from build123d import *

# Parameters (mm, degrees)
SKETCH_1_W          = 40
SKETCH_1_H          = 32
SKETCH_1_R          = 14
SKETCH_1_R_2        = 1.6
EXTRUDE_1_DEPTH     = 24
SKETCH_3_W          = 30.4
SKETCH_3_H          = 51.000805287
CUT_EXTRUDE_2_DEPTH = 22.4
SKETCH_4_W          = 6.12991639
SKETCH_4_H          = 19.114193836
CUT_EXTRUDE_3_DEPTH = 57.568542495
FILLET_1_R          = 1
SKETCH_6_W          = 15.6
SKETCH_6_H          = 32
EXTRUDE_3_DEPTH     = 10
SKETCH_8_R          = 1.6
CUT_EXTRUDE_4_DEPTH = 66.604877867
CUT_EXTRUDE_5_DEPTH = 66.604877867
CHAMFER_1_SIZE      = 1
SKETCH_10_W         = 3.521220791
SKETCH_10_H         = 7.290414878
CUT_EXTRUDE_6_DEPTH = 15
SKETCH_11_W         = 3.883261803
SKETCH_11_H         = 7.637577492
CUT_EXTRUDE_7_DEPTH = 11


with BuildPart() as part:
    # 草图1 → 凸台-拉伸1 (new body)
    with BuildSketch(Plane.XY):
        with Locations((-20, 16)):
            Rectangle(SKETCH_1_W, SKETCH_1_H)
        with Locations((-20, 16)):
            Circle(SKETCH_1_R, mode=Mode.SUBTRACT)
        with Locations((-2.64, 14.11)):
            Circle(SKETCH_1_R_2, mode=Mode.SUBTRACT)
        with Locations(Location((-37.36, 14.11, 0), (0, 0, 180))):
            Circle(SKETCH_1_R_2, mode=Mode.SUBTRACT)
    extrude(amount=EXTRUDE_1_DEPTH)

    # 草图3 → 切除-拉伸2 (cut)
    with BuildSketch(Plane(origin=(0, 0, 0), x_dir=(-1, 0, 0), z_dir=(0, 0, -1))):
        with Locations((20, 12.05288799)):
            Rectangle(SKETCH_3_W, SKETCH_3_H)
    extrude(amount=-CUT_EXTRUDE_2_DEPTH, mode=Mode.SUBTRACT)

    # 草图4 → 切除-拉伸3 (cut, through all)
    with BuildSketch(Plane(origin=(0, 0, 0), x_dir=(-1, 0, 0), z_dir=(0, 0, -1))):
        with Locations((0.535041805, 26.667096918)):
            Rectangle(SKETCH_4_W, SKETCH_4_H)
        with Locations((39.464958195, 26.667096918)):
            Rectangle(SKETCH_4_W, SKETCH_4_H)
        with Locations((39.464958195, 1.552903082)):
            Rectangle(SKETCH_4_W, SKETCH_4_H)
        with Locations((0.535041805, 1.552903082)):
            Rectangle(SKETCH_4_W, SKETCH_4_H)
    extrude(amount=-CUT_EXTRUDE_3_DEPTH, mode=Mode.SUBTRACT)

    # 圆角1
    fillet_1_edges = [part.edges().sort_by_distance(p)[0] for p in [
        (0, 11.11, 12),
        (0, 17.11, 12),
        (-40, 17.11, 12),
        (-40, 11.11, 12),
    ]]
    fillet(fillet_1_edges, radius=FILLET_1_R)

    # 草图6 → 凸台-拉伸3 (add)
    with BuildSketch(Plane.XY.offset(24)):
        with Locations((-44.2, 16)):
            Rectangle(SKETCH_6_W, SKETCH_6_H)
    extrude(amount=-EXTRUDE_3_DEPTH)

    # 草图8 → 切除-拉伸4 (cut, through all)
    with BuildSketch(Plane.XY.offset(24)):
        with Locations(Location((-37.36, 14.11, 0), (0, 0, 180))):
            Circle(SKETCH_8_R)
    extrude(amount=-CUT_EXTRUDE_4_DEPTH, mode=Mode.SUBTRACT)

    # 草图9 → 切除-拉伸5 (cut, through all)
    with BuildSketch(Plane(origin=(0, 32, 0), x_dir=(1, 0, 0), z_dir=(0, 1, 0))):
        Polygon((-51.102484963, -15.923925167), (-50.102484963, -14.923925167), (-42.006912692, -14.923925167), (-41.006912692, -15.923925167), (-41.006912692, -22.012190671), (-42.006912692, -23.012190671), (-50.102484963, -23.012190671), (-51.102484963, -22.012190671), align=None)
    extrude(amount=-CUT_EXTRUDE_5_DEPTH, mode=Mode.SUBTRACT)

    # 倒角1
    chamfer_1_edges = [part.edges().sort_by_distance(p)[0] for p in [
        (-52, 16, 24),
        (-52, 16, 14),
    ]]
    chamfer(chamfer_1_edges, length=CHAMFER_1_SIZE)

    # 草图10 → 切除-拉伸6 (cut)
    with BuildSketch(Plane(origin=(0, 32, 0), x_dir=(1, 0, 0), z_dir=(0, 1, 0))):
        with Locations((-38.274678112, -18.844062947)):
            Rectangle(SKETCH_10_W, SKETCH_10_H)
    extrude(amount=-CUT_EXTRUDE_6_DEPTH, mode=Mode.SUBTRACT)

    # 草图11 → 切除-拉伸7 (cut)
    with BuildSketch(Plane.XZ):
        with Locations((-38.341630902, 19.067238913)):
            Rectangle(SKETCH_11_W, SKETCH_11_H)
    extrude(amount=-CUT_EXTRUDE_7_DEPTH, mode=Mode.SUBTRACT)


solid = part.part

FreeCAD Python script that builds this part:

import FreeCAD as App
import Part
import Sketcher
from FreeCAD import Vector
Q = App.Units.Quantity


def edges_at(feature, points):
    """Names of the edges that pass closest to the given points."""
    edges = feature.Shape.Edges
    near = lambda p: min(range(len(edges)), key=lambda i: edges[i].distToShape(Part.Vertex(*p))[0])
    return sorted({f"Edge{near(p) + 1}" for p in points})

doc = App.newDocument("Part")
body = doc.addObject("PartDesign::Body", "Body")

sketch1 = body.newObject("Sketcher::SketchObject", "Sketch")
sketch1.AttachmentSupport = (doc.getObject("XY_Plane"), [""])
sketch1.MapMode = "FlatFace"
sketch1.addGeometry([
    Part.LineSegment(Vector(-40, 32, 0), Vector(-40, 0, 0)),
    Part.LineSegment(Vector(-40, 0, 0), Vector(0, 0, 0)),
    Part.LineSegment(Vector(0, 0, 0), Vector(0, 32, 0)),
    Part.LineSegment(Vector(0, 32, 0), Vector(-40, 32, 0)),
    Part.Circle(Vector(-37.36, 14.11, 0), Vector(0, 0, 1), 1.6),
    Part.Circle(Vector(-2.64, 14.11, 0), Vector(0, 0, 1), 1.6),
    Part.Circle(Vector(-20, 16, 0), Vector(0, 0, 1), 14),
], False)
sketch1.addConstraint([
    Sketcher.Constraint("Coincident", 0, 2, 1, 1),
    Sketcher.Constraint("Coincident", 1, 2, 2, 1),
    Sketcher.Constraint("Coincident", 2, 2, 3, 1),
    Sketcher.Constraint("Coincident", 3, 2, 0, 1),
    Sketcher.Constraint("Vertical", 0),
    Sketcher.Constraint("Horizontal", 1),
    Sketcher.Constraint("Vertical", 2),
    Sketcher.Constraint("Horizontal", 3),
    Sketcher.Constraint("Coincident", 1, 2, -1, 1),
    Sketcher.Constraint("Equal", 4, 5),
    Sketcher.Constraint("Horizontal", 4, 3, 5, 3),
    Sketcher.Constraint("Diameter", 6, Q("28 mm")),
    Sketcher.Constraint("Diameter", 4, Q("3.2 mm")),
    Sketcher.Constraint("DistanceX", 1, 1, 1, 2, Q("40 mm")),
    Sketcher.Constraint("DistanceY", 0, 2, 0, 1, Q("32 mm")),
    Sketcher.Constraint("DistanceX", 6, 3, -1, 1, Q("20 mm")),
    Sketcher.Constraint("DistanceY", -1, 1, 6, 3, Q("16 mm")),
    Sketcher.Constraint("DistanceX", 4, 3, -1, 1, Q("37.36 mm")),
    Sketcher.Constraint("DistanceY", -1, 1, 4, 3, Q("14.11 mm")),
    Sketcher.Constraint("DistanceX", 5, 3, -1, 1, Q("2.64 mm")),
])
pad1 = body.newObject("PartDesign::Pad", "Pad")
pad1.Profile = sketch1
pad1.Length = 24

sketch2 = body.newObject("Sketcher::SketchObject", "Sketch001")
sketch2.AttachmentSupport = (doc.getObject("XY_Plane"), [""])
sketch2.MapMode = "FlatFace"
sketch2.addGeometry([
    Part.LineSegment(Vector(-4.8, 37.553291, 0), Vector(-4.8, -13.447515, 0)),
    Part.LineSegment(Vector(-4.8, -13.447515, 0), Vector(-35.2, -13.447515, 0)),
    Part.LineSegment(Vector(-35.2, -13.447515, 0), Vector(-35.2, 37.553291, 0)),
    Part.LineSegment(Vector(-35.2, 37.553291, 0), Vector(-4.8, 37.553291, 0)),
], False)
sketch2.addConstraint([
    Sketcher.Constraint("Coincident", 0, 2, 1, 1),
    Sketcher.Constraint("Coincident", 1, 2, 2, 1),
    Sketcher.Constraint("Coincident", 2, 2, 3, 1),
    Sketcher.Constraint("Coincident", 3, 2, 0, 1),
    Sketcher.Constraint("Vertical", 0),
    Sketcher.Constraint("Horizontal", 1),
    Sketcher.Constraint("Vertical", 2),
    Sketcher.Constraint("Horizontal", 3),
    Sketcher.Constraint("DistanceX", 1, 2, 1, 1, Q("30.4 mm")),
    Sketcher.Constraint("DistanceX", 0, 2, -1, 1, Q("4.8 mm")),
    Sketcher.Constraint("DistanceY", 0, 2, 0, 1, Q("51.000805 mm")),
    Sketcher.Constraint("DistanceY", -1, 1, 2, 2, Q("37.553291 mm")),
])
pocket1 = body.newObject("PartDesign::Pocket", "Pocket")
pocket1.Profile = sketch2
pocket1.Length = 22.4
pocket1.Reversed = True

sketch3 = body.newObject("Sketcher::SketchObject", "Sketch002")
sketch3.AttachmentSupport = (doc.getObject("XY_Plane"), [""])
sketch3.MapMode = "FlatFace"
sketch3.addGeometry([
    Part.LineSegment(Vector(2.529916, 36.224194, 0), Vector(2.529916, 17.11, 0)),
    Part.LineSegment(Vector(2.529916, 17.11, 0), Vector(-3.6, 17.11, 0)),
    Part.LineSegment(Vector(-3.6, 17.11, 0), Vector(-3.6, 36.224194, 0)),
    Part.LineSegment(Vector(-3.6, 36.224194, 0), Vector(2.529916, 36.224194, 0)),
    Part.LineSegment(Vector(-36.4, 36.224194, 0), Vector(-36.4, 17.11, 0)),
    Part.LineSegment(Vector(-36.4, 17.11, 0), Vector(-42.529916, 17.11, 0)),
    Part.LineSegment(Vector(-42.529916, 17.11, 0), Vector(-42.529916, 36.224194, 0)),
    Part.LineSegment(Vector(-42.529916, 36.224194, 0), Vector(-36.4, 36.224194, 0)),
    Part.LineSegment(Vector(-36.4, 11.11, 0), Vector(-36.4, -8.004194, 0)),
    Part.LineSegment(Vector(-36.4, -8.004194, 0), Vector(-42.529916, -8.004194, 0)),
    Part.LineSegment(Vector(-42.529916, -8.004194, 0), Vector(-42.529916, 11.11, 0)),
    Part.LineSegment(Vector(-42.529916, 11.11, 0), Vector(-36.4, 11.11, 0)),
    Part.LineSegment(Vector(2.529916, 11.11, 0), Vector(2.529916, -8.004194, 0)),
    Part.LineSegment(Vector(2.529916, -8.004194, 0), Vector(-3.6, -8.004194, 0)),
    Part.LineSegment(Vector(-3.6, -8.004194, 0), Vector(-3.6, 11.11, 0)),
    Part.LineSegment(Vector(-3.6, 11.11, 0), Vector(2.529916, 11.11, 0)),
], False)
sketch3.addConstraint([
    Sketcher.Constraint("Coincident", 0, 2, 1, 1),
    Sketcher.Constraint("Coincident", 1, 2, 2, 1),
    Sketcher.Constraint("Coincident", 2, 2, 3, 1),
    Sketcher.Constraint("Coincident", 3, 2, 0, 1),
    Sketcher.Constraint("Coincident", 4, 2, 5, 1),
    Sketcher.Constraint("Coincident", 5, 2, 6, 1),
    Sketcher.Constraint("Coincident", 6, 2, 7, 1),
    Sketcher.Constraint("Coincident", 7, 2, 4, 1),
    Sketcher.Constraint("Coincident", 8, 2, 9, 1),
    Sketcher.Constraint("Coincident", 9, 2, 10, 1),
    Sketcher.Constraint("Coincident", 10, 2, 11, 1),
    Sketcher.Constraint("Coincident", 11, 2, 8, 1),
    Sketcher.Constraint("Coincident", 12, 2, 13, 1),
    Sketcher.Constraint("Coincident", 13, 2, 14, 1),
    Sketcher.Constraint("Coincident", 14, 2, 15, 1),
    Sketcher.Constraint("Coincident", 15, 2, 12, 1),
    Sketcher.Constraint("Vertical", 0),
    Sketcher.Constraint("Horizontal", 1),
    Sketcher.Constraint("Vertical", 2),
    Sketcher.Constraint("Horizontal", 3),
    Sketcher.Constraint("Vertical", 4),
    Sketcher.Constraint("Horizontal", 5),
    Sketcher.Constraint("Vertical", 6),
    Sketcher.Constraint("Horizontal", 7),
    Sketcher.Constraint("Vertical", 8),
    Sketcher.Constraint("Horizontal", 9),
    Sketcher.Constraint("Vertical", 10),
    Sketcher.Constraint("Horizontal", 11),
    Sketcher.Constraint("Vertical", 12),
    Sketcher.Constraint("Horizontal", 13),
    Sketcher.Constraint("Vertical", 14),
    Sketcher.Constraint("Horizontal", 15),
    Sketcher.Constraint("Horizontal", 1, 2, 4, 2),
    Sketcher.Constraint("Horizontal", 3, 2, 6, 2),
    Sketcher.Constraint("Horizontal", 9, 2, 12, 2),
    Sketcher.Constraint("Horizontal", 11, 2, 14, 2),
    Sketcher.Constraint("Vertical", 7, 2, 8, 2),
    Sketcher.Constraint("Vertical", 6, 2, 9, 2),
    Sketcher.Constraint("Vertical", 3, 2, 12, 2),
    Sketcher.Constraint("Vertical", 2, 2, 13, 2),
    Sketcher.Constraint("Equal", 3, 5),
    Sketcher.Constraint("Equal", 6, 8),
    Sketcher.Constraint("DistanceY", 10, 2, 5, 2, Q("6 mm")),
    Sketcher.Constraint("DistanceX", 1, 2, -1, 1, Q("3.6 mm")),
    Sketcher.Constraint("DistanceX", 4, 2, -1, 1, Q("36.4 mm")),
    Sketcher.Constraint("DistanceY", -1, 1, 0, 2, Q("17.11 mm")),
    Sketcher.Constraint("DistanceX", 1, 2, 1, 1, Q("6.129916 mm")),
    Sketcher.Constraint("DistanceY", 0, 2, 0, 1, Q("19.114194 mm")),
])
pocket2 = body.newObject("PartDesign::Pocket", "Pocket001")
pocket2.Profile = sketch3
pocket2.Type = "ThroughAll"
pocket2.Reversed = True
doc.recompute()

fillet = body.newObject("PartDesign::Fillet", "Fillet")
fillet.Base = (pocket2, edges_at(pocket2, [
    (0, 11.11, 12),
    (0, 17.11, 12),
    (-40, 17.11, 12),
    (-40, 11.11, 12),
]))
fillet.Radius = 1

sketch4 = body.newObject("Sketcher::SketchObject", "Sketch003")
sketch4.AttachmentSupport = (doc.getObject("XY_Plane"), [""])
sketch4.MapMode = "FlatFace"
sketch4.AttachmentOffset = App.Placement(Vector(0, 0, 24), App.Rotation())
sketch4.addGeometry([
    Part.LineSegment(Vector(-52, 32, 0), Vector(-52, 0, 0)),
    Part.LineSegment(Vector(-52, 0, 0), Vector(-36.4, 0, 0)),
    Part.LineSegment(Vector(-36.4, 0, 0), Vector(-36.4, 32, 0)),
    Part.LineSegment(Vector(-36.4, 32, 0), Vector(-52, 32, 0)),
], False)
sketch4.addConstraint([
    Sketcher.Constraint("Coincident", 0, 2, 1, 1),
    Sketcher.Constraint("Coincident", 1, 2, 2, 1),
    Sketcher.Constraint("Coincident", 2, 2, 3, 1),
    Sketcher.Constraint("Coincident", 3, 2, 0, 1),
    Sketcher.Constraint("Vertical", 0),
    Sketcher.Constraint("Horizontal", 1),
    Sketcher.Constraint("Vertical", 2),
    Sketcher.Constraint("Horizontal", 3),
    Sketcher.Constraint("PointOnObject", 0, 2, -1),
    Sketcher.Constraint("DistanceY", 0, 2, 0, 1, Q("32 mm")),
    Sketcher.Constraint("DistanceX", 1, 1, 1, 2, Q("15.6 mm")),
    Sketcher.Constraint("DistanceX", 0, 2, -1, 1, Q("52 mm")),
])
pad2 = body.newObject("PartDesign::Pad", "Pad001")
pad2.Profile = sketch4
pad2.Length = 10
pad2.Reversed = True

sketch5 = body.newObject("Sketcher::SketchObject", "Sketch004")
sketch5.AttachmentSupport = (doc.getObject("XY_Plane"), [""])
sketch5.MapMode = "FlatFace"
sketch5.AttachmentOffset = App.Placement(Vector(0, 0, 24), App.Rotation())
sketch5.addGeometry(Part.Circle(Vector(-37.36, 14.11, 0), Vector(0, 0, 1), 1.6), False)
sketch5.addConstraint([
    Sketcher.Constraint("Diameter", 0, Q("3.2 mm")),
    Sketcher.Constraint("DistanceX", 0, 3, -1, 1, Q("37.36 mm")),
    Sketcher.Constraint("DistanceY", -1, 1, 0, 3, Q("14.11 mm")),
])
pocket3 = body.newObject("PartDesign::Pocket", "Pocket002")
pocket3.Profile = sketch5
pocket3.Type = "ThroughAll"

sketch6 = body.newObject("Sketcher::SketchObject", "Sketch005")
sketch6.AttachmentSupport = (doc.getObject("XZ_Plane"), [""])
sketch6.MapMode = "FlatFace"
sketch6.AttachmentOffset = App.Placement(Vector(0, 0, -32), App.Rotation())
sketch6.addGeometry([
    Part.LineSegment(Vector(-50.102485, 14.923925, 0), Vector(-51.102485, 15.923925, 0)),
    Part.LineSegment(Vector(-51.102485, 15.923925, 0), Vector(-51.102485, 22.012191, 0)),
    Part.LineSegment(Vector(-51.102485, 22.012191, 0), Vector(-50.102485, 23.012191, 0)),
    Part.LineSegment(Vector(-50.102485, 23.012191, 0), Vector(-42.006913, 23.012191, 0)),
    Part.LineSegment(Vector(-42.006913, 23.012191, 0), Vector(-41.006913, 22.012191, 0)),
    Part.LineSegment(Vector(-41.006913, 22.012191, 0), Vector(-41.006913, 15.923925, 0)),
    Part.LineSegment(Vector(-41.006913, 15.923925, 0), Vector(-42.006913, 14.923925, 0)),
    Part.LineSegment(Vector(-42.006913, 14.923925, 0), Vector(-50.102485, 14.923925, 0)),
], False)
sketch6.addConstraint([
    Sketcher.Constraint("Coincident", 0, 2, 1, 1),
    Sketcher.Constraint("Coincident", 1, 2, 2, 1),
    Sketcher.Constraint("Coincident", 2, 2, 3, 1),
    Sketcher.Constraint("Coincident", 3, 2, 4, 1),
    Sketcher.Constraint("Coincident", 4, 2, 5, 1),
    Sketcher.Constraint("Coincident", 5, 2, 6, 1),
    Sketcher.Constraint("Coincident", 6, 2, 7, 1),
    Sketcher.Constraint("Coincident", 7, 2, 0, 1),
    Sketcher.Constraint("Vertical", 1),
    Sketcher.Constraint("Horizontal", 3),
    Sketcher.Constraint("Vertical", 5),
    Sketcher.Constraint("Horizontal", 7),
    Sketcher.Constraint("Perpendicular", 0, 2),
    Sketcher.Constraint("Perpendicular", 2, 4),
    Sketcher.Constraint("Perpendicular", 4, 6),
    Sketcher.Constraint("Horizontal", 1, 2, 4, 2),
    Sketcher.Constraint("Horizontal", 0, 2, 5, 2),
    Sketcher.Constraint("Vertical", 3, 2, 6, 2),
    Sketcher.Constraint("Vertical", 2, 2, 7, 2),
    Sketcher.Constraint("DistanceX", 1, 2, 2, 2, Q("1 mm")),
    Sketcher.Constraint("DistanceX", 3, 1, 3, 2, Q("8.095572 mm")),
    Sketcher.Constraint("DistanceY", 1, 1, 1, 2, Q("6.088266 mm")),
    Sketcher.Constraint("DistanceY", -1, 1, 1, 2, Q("22.012191 mm")),
    Sketcher.Constraint("DistanceX", 0, 2, -1, 1, Q("51.102485 mm")),
])
pocket4 = body.newObject("PartDesign::Pocket", "Pocket003")
pocket4.Profile = sketch6
pocket4.Type = "ThroughAll"
pocket4.Reversed = True
doc.recompute()

chamfer = body.newObject("PartDesign::Chamfer", "Chamfer")
chamfer.Base = (pocket4, edges_at(pocket4, [(-52, 16, 24), (-52, 16, 14)]))
chamfer.Size = 1

sketch7 = body.newObject("Sketcher::SketchObject", "Sketch006")
sketch7.AttachmentSupport = (doc.getObject("XZ_Plane"), [""])
sketch7.MapMode = "FlatFace"
sketch7.AttachmentOffset = App.Placement(Vector(0, 0, -32), App.Rotation())
sketch7.addGeometry([
    Part.LineSegment(Vector(-40.035289, 15.198856, 0), Vector(-40.035289, 22.48927, 0)),
    Part.LineSegment(Vector(-40.035289, 22.48927, 0), Vector(-36.514068, 22.48927, 0)),
    Part.LineSegment(Vector(-36.514068, 22.48927, 0), Vector(-36.514068, 15.198856, 0)),
    Part.LineSegment(Vector(-36.514068, 15.198856, 0), Vector(-40.035289, 15.198856, 0)),
], False)
sketch7.addConstraint([
    Sketcher.Constraint("Coincident", 0, 2, 1, 1),
    Sketcher.Constraint("Coincident", 1, 2, 2, 1),
    Sketcher.Constraint("Coincident", 2, 2, 3, 1),
    Sketcher.Constraint("Coincident", 3, 2, 0, 1),
    Sketcher.Constraint("Vertical", 0),
    Sketcher.Constraint("Horizontal", 1),
    Sketcher.Constraint("Vertical", 2),
    Sketcher.Constraint("Horizontal", 3),
    Sketcher.Constraint("DistanceX", 1, 1, 1, 2, Q("3.521221 mm")),
    Sketcher.Constraint("DistanceY", 0, 1, 0, 2, Q("7.290415 mm")),
    Sketcher.Constraint("DistanceX", 0, 2, -1, 1, Q("40.035289 mm")),
    Sketcher.Constraint("DistanceY", -1, 1, 0, 2, Q("22.48927 mm")),
])
pocket5 = body.newObject("PartDesign::Pocket", "Pocket004")
pocket5.Profile = sketch7
pocket5.Length = 15
pocket5.Reversed = True

sketch8 = body.newObject("Sketcher::SketchObject", "Sketch007")
sketch8.AttachmentSupport = (doc.getObject("XZ_Plane"), [""])
sketch8.MapMode = "FlatFace"
sketch8.addGeometry([
    Part.LineSegment(Vector(-40.283262, 22.886028, 0), Vector(-40.283262, 15.24845, 0)),
    Part.LineSegment(Vector(-40.283262, 15.24845, 0), Vector(-36.4, 15.24845, 0)),
    Part.LineSegment(Vector(-36.4, 15.24845, 0), Vector(-36.4, 22.886028, 0)),
    Part.LineSegment(Vector(-36.4, 22.886028, 0), Vector(-40.283262, 22.886028, 0)),
], False)
sketch8.addConstraint([
    Sketcher.Constraint("Coincident", 0, 2, 1, 1),
    Sketcher.Constraint("Coincident", 1, 2, 2, 1),
    Sketcher.Constraint("Coincident", 2, 2, 3, 1),
    Sketcher.Constraint("Coincident", 3, 2, 0, 1),
    Sketcher.Constraint("Vertical", 0),
    Sketcher.Constraint("Horizontal", 1),
    Sketcher.Constraint("Vertical", 2),
    Sketcher.Constraint("Horizontal", 3),
    Sketcher.Constraint("DistanceX", 1, 2, -1, 1, Q("36.4 mm")),
    Sketcher.Constraint("DistanceX", 1, 1, 1, 2, Q("3.883262 mm")),
    Sketcher.Constraint("DistanceY", 0, 2, 0, 1, Q("7.637577 mm")),
    Sketcher.Constraint("DistanceY", -1, 1, 0, 2, Q("15.24845 mm")),
])
pocket6 = body.newObject("PartDesign::Pocket", "Pocket005")
pocket6.Profile = sketch8
pocket6.Length = 11

doc.recompute()
